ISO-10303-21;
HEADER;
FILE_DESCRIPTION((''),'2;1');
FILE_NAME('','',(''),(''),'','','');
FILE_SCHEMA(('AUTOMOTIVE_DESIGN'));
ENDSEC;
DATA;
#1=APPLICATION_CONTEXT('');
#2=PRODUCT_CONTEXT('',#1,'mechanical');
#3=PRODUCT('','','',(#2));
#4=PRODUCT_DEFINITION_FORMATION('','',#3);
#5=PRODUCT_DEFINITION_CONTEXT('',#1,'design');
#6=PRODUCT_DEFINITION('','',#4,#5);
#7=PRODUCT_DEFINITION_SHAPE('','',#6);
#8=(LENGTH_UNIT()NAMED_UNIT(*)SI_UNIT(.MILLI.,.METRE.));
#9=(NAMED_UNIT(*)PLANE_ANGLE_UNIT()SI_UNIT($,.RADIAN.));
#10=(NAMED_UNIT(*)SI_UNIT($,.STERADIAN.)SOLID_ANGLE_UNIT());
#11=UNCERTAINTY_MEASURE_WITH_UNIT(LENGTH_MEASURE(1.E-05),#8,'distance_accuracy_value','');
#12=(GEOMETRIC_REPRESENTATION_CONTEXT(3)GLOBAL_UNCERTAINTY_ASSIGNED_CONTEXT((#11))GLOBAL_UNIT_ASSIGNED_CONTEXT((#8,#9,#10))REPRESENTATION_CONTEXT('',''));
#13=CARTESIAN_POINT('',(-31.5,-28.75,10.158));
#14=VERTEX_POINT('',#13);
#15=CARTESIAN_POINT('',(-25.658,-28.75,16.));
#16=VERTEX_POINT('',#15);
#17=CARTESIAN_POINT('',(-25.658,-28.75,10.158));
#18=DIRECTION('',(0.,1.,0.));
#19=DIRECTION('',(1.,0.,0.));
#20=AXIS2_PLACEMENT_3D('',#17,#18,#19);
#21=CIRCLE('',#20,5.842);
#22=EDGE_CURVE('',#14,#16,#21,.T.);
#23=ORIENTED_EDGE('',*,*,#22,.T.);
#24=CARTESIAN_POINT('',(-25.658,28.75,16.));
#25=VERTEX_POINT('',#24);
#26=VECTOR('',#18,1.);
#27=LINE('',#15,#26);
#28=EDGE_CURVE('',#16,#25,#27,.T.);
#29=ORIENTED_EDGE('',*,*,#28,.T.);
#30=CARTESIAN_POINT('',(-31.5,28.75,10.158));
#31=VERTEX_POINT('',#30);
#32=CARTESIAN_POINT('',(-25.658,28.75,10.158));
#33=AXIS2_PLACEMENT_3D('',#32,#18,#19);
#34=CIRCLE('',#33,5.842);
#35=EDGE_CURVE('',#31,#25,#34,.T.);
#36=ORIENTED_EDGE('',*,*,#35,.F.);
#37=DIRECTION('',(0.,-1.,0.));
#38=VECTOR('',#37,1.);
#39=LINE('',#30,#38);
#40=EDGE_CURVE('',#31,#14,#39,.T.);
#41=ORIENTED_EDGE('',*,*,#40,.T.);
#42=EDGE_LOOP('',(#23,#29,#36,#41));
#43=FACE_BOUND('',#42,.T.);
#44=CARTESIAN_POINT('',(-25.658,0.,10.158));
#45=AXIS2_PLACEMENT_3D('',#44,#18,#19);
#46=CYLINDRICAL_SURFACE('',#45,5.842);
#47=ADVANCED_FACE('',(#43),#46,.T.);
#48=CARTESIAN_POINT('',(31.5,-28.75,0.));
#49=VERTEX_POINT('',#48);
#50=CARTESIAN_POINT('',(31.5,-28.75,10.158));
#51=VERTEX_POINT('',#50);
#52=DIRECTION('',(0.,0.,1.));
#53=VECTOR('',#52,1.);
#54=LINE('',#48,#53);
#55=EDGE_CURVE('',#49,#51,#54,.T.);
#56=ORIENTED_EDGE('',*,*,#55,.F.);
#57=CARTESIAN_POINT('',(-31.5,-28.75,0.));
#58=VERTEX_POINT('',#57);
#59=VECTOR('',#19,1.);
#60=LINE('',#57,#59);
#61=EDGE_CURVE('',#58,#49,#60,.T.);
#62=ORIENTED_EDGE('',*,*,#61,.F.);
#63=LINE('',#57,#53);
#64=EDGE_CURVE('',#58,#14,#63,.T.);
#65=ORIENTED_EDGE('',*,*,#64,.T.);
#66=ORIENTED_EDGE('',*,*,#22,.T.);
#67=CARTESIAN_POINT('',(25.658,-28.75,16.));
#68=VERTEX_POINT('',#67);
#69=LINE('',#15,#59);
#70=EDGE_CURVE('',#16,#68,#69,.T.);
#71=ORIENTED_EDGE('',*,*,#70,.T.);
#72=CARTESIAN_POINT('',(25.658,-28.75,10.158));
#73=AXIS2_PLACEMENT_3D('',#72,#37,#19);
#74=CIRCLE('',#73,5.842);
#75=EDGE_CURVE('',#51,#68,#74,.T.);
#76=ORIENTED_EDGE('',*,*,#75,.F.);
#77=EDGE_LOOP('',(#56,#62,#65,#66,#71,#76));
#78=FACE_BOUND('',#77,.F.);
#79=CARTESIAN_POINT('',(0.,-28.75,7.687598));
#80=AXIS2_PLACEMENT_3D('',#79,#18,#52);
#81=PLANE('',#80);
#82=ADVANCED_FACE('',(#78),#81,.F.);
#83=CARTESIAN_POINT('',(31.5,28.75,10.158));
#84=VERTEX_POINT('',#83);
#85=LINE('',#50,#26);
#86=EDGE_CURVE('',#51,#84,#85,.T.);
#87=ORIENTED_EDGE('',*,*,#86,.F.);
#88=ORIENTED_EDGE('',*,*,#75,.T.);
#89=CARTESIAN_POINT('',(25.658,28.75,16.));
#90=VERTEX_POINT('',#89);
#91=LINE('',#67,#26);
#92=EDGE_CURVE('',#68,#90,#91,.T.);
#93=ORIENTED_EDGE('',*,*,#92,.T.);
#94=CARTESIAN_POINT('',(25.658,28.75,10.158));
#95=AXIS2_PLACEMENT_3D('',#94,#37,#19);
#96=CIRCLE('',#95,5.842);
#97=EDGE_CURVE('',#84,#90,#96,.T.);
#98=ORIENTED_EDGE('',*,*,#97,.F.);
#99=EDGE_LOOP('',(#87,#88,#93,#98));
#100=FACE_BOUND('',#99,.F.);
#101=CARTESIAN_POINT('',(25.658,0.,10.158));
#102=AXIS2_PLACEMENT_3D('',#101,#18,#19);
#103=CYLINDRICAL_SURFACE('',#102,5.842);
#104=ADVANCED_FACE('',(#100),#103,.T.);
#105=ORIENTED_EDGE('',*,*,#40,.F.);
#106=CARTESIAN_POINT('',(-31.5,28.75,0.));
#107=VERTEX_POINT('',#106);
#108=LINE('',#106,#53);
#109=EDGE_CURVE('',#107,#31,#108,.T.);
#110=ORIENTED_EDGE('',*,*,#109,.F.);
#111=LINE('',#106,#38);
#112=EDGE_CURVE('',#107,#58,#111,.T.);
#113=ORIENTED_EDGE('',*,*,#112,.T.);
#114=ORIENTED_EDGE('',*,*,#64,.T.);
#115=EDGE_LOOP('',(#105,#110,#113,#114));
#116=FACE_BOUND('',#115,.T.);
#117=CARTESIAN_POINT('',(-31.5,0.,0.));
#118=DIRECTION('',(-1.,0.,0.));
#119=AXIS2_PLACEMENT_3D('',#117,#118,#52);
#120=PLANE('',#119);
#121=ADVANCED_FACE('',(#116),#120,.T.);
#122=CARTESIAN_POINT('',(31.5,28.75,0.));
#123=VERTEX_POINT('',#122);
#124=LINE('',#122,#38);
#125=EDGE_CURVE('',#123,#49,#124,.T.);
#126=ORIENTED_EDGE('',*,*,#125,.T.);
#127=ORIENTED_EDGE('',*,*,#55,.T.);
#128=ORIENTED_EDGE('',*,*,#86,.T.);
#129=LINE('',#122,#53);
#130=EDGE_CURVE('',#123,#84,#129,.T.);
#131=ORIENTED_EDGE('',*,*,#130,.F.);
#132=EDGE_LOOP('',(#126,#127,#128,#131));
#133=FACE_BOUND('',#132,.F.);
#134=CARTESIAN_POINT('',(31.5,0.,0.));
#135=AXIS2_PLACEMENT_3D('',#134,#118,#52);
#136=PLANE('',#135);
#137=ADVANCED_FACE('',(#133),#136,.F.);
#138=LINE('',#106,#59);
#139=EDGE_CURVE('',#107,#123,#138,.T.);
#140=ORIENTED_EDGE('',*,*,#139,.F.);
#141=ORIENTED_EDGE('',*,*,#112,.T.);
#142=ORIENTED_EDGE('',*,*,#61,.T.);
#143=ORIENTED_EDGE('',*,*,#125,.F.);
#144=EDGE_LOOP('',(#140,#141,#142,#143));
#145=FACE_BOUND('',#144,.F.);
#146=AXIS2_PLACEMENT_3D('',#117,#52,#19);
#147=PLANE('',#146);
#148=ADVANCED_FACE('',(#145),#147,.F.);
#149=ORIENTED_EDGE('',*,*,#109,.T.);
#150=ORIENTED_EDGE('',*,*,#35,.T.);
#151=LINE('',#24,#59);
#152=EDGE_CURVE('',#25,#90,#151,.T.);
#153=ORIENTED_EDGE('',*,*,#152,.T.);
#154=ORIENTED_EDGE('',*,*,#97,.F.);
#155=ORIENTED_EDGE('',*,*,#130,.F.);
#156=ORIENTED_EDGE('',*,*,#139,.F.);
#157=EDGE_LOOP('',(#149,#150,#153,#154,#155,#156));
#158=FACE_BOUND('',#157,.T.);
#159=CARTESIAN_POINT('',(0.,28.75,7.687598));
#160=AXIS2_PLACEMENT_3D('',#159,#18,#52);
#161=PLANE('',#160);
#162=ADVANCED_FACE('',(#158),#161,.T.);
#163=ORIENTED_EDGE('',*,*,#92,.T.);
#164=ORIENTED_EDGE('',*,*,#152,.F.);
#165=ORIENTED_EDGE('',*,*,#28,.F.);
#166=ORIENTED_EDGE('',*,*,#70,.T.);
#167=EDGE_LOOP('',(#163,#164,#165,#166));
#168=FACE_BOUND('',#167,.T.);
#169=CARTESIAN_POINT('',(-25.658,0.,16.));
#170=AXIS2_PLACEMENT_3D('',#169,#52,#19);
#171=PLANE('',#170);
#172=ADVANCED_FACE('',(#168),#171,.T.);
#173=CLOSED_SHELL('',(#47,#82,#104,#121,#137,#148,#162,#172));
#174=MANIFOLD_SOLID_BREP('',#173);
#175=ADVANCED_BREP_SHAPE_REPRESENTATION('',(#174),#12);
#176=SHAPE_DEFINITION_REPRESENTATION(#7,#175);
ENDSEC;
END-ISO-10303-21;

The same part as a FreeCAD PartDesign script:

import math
import FreeCAD as App
import Part
import Sketcher
Q = App.Units.Quantity

doc = App.newDocument("Part")
body = doc.addObject("PartDesign::Body", "Body")

# Sketch on XZ plane
sketch1 = body.newObject("Sketcher::SketchObject", "Sketch")
sketch1.AttachmentSupport = (doc.getObject("XZ_Plane"), [""])
sketch1.MapMode = "FlatFace"
sketch1.addGeometry(Part.ArcOfCircle(Part.Circle(App.Vector(-26, 10, 0), App.Vector(0, 0, 1), 6), math.radians(90), math.radians(180)), False)
sketch1.addGeometry(Part.LineSegment(App.Vector(-32, 10, 0), App.Vector(-32, 0, 0)), False)
sketch1.addGeometry(Part.LineSegment(App.Vector(-32, 0, 0), App.Vector(32, 0, 0)), False)
sketch1.addGeometry(Part.LineSegment(App.Vector(32, 0, 0), App.Vector(32, 10, 0)), False)
sketch1.addGeometry(Part.ArcOfCircle(Part.Circle(App.Vector(26, 10, 0), App.Vector(0, 0, 1), 6), math.radians(0), math.radians(90)), False)
sketch1.addGeometry(Part.LineSegment(App.Vector(26, 16, 0), App.Vector(-26, 16, 0)), False)
sketch1.addConstraint(Sketcher.Constraint("Tangent", 0, 2, 1, 1))
sketch1.addConstraint(Sketcher.Constraint("Coincident", 1, 2, 2, 1))
sketch1.addConstraint(Sketcher.Constraint("Coincident", 2, 2, 3, 1))
sketch1.addConstraint(Sketcher.Constraint("Tangent", 3, 2, 4, 1))
sketch1.addConstraint(Sketcher.Constraint("Tangent", 4, 2, 5, 1))
sketch1.addConstraint(Sketcher.Constraint("Tangent", 5, 2, 0, 1))
sketch1.addConstraint(Sketcher.Constraint("Vertical", 1))
sketch1.addConstraint(Sketcher.Constraint("Horizontal", 2))
sketch1.addConstraint(Sketcher.Constraint("Vertical", 3))
sketch1.addConstraint(Sketcher.Constraint("Horizontal", 5))
sketch1.addConstraint(Sketcher.Constraint("Equal", 0, 4))
sketch1.addConstraint(Sketcher.Constraint("Symmetric", 1, 2, 2, 2, -1, 1))
sketch1.addConstraint(Sketcher.Constraint("DistanceX", 2, 1, 2, 2, Q("63 mm")))
sketch1.addConstraint(Sketcher.Constraint("DistanceY", -1, 1, 4, 2, Q("16 mm")))
sketch1.addConstraint(Sketcher.Constraint("Radius", 0, Q("5.842 mm")))
pad1 = body.newObject("PartDesign::Pad", "Pad")
pad1.Profile = sketch1
pad1.Length = 57.5
pad1.Midplane = True

doc.recompute()
